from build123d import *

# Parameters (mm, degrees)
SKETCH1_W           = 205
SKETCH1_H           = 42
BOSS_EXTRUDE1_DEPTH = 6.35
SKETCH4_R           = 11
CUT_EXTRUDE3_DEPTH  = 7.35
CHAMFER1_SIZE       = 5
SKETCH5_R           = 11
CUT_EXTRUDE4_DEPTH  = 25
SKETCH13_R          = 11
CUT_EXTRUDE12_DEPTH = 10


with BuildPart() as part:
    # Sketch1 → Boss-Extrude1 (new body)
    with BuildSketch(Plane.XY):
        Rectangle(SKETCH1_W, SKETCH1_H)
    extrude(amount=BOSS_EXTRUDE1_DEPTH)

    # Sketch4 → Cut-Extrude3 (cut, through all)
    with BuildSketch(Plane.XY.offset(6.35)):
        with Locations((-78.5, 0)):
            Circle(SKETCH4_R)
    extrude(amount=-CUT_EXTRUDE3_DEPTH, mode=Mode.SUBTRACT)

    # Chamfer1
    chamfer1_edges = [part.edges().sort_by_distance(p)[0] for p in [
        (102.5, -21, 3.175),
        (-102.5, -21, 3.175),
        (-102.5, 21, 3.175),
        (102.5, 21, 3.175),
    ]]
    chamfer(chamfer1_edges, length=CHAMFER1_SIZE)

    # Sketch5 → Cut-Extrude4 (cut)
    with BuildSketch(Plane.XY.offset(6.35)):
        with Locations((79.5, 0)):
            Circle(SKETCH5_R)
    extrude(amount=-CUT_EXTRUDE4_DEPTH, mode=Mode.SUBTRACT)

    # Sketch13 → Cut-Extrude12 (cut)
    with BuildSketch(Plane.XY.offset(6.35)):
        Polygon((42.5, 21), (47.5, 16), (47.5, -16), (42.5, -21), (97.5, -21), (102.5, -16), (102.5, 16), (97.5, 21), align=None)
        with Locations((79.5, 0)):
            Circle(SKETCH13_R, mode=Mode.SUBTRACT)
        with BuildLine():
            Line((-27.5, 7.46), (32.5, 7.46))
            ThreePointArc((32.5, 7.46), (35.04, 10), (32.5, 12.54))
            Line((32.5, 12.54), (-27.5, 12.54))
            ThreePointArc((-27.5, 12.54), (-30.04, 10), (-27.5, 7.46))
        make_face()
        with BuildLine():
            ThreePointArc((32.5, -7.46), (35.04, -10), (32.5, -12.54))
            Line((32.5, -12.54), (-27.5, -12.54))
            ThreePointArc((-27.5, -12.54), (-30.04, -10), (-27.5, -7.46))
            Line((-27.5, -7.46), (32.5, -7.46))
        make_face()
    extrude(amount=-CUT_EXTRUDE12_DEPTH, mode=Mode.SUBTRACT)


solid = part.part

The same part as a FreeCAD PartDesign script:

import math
import FreeCAD as App
import Part
import Sketcher
Q = App.Units.Quantity


def edges_at(feature, points):
    """Names of the edges that pass closest to the given points."""
    edges = feature.Shape.Edges
    near = lambda p: min(range(len(edges)), key=lambda i: edges[i].distToShape(Part.Vertex(*p))[0])
    return sorted({f"Edge{near(p) + 1}" for p in points})

doc = App.newDocument("Part")
body = doc.addObject("PartDesign::Body", "Body")

# Sketch on XY plane
sketch1 = body.newObject("Sketcher::SketchObject", "Sketch")
sketch1.AttachmentSupport = (doc.getObject("XY_Plane"), [""])
sketch1.MapMode = "FlatFace"
sketch1.addGeometry([
    Part.LineSegment(App.Vector(-102, 21, 0), App.Vector(-102, -21, 0)),
    Part.LineSegment(App.Vector(-102, -21, 0), App.Vector(102, -21, 0)),
    Part.LineSegment(App.Vector(102, -21, 0), App.Vector(102, 21, 0)),
    Part.LineSegment(App.Vector(102, 21, 0), App.Vector(-102, 21, 0)),
], False)
sketch1.addConstraint([
    Sketcher.Constraint("Coincident", 0, 2, 1, 1),
    Sketcher.Constraint("Coincident", 1, 2, 2, 1),
    Sketcher.Constraint("Coincident", 2, 2, 3, 1),
    Sketcher.Constraint("Coincident", 3, 2, 0, 1),
    Sketcher.Constraint("Vertical", 0),
    Sketcher.Constraint("Horizontal", 1),
    Sketcher.Constraint("Vertical", 2),
    Sketcher.Constraint("Horizontal", 3),
    Sketcher.Constraint("Symmetric", 0, 2, 2, 2, -1, 1),
    Sketcher.Constraint("DistanceX", 1, 1, 1, 2, Q("205 mm")),
    Sketcher.Constraint("DistanceY", 0, 2, 0, 1, Q("42 mm")),
])
pad1 = body.newObject("PartDesign::Pad", "Pad")
pad1.Profile = sketch1
pad1.Length = 6.35

# Sketch on XY plane
sketch2 = body.newObject("Sketcher::SketchObject", "Sketch001")
sketch2.AttachmentSupport = (doc.getObject("XY_Plane"), [""])
sketch2.MapMode = "FlatFace"
sketch2.AttachmentOffset = App.Placement(App.Vector(0, 0, 6.35), App.Rotation())
sketch2.addGeometry(Part.Circle(App.Vector(-78, 0, 0), App.Vector(0, 0, 1), 11), False)
sketch2.addConstraint([
    Sketcher.Constraint("PointOnObject", 0, 3, -1),
    Sketcher.Constraint("Diameter", 0, Q("22 mm")),
    Sketcher.Constraint("DistanceX", 0, 3, -1, 1, Q("78.5 mm")),
])
pocket1 = body.newObject("PartDesign::Pocket", "Pocket")
pocket1.Profile = sketch2
pocket1.Type = "ThroughAll"
doc.recompute()

chamfer = body.newObject("PartDesign::Chamfer", "Chamfer")
chamfer.Base = (pocket1, edges_at(pocket1, [
    (102.5, -21, 3.175),
    (-102.5, -21, 3.175),
    (-102.5, 21, 3.175),
    (102.5, 21, 3.175),
]))
chamfer.Size = 5

# Sketch on XY plane
sketch3 = body.newObject("Sketcher::SketchObject", "Sketch002")
sketch3.AttachmentSupport = (doc.getObject("XY_Plane"), [""])
sketch3.MapMode = "FlatFace"
sketch3.AttachmentOffset = App.Placement(App.Vector(0, 0, 6.35), App.Rotation())
sketch3.addGeometry(Part.Circle(App.Vector(80, 0, 0), App.Vector(0, 0, 1), 11), False)
sketch3.addConstraint([
    Sketcher.Constraint("PointOnObject", 0, 3, -1),
    Sketcher.Constraint("Diameter", 0, Q("22 mm")),
    Sketcher.Constraint("DistanceX", -1, 1, 0, 3, Q("79.5 mm")),
])
pocket2 = body.newObject("PartDesign::Pocket", "Pocket001")
pocket2.Profile = sketch3
pocket2.Length = 25

# Sketch on XY plane
sketch4 = body.newObject("Sketcher::SketchObject", "Sketch003")
sketch4.AttachmentSupport = (doc.getObject("XY_Plane"), [""])
sketch4.MapMode = "FlatFace"
sketch4.AttachmentOffset = App.Placement(App.Vector(0, 0, 6.35), App.Rotation())
sketch4.addGeometry([
    Part.LineSegment(App.Vector(42.5, 21, 0), App.Vector(47.5, 16, 0)),  # 0
    Part.LineSegment(App.Vector(47.5, 16, 0), App.Vector(47.5, -16, 0)),  # 1
    Part.LineSegment(App.Vector(47.5, -16, 0), App.Vector(42.5, -21, 0)),  # 2
    Part.LineSegment(App.Vector(42.5, -21, 0), App.Vector(97.5, -21, 0)),  # 3
    Part.LineSegment(App.Vector(97.5, -21, 0), App.Vector(102.5, -16, 0)),  # 4
    Part.LineSegment(App.Vector(102.5, -16, 0), App.Vector(102.5, 16, 0)),  # 5
    Part.LineSegment(App.Vector(102.5, 16, 0), App.Vector(97.5, 21, 0)),  # 6
    Part.LineSegment(App.Vector(97.5, 21, 0), App.Vector(42.5, 21, 0)),  # 7
    Part.Circle(App.Vector(79.5, 0, 0), App.Vector(0, 0, 1), 11),  # 8
    Part.LineSegment(App.Vector(-27.5, 7.5, 0), App.Vector(32.5, 7.5, 0)),  # 9
    Part.ArcOfCircle(Part.Circle(App.Vector(32.5, 10, 0), App.Vector(0, 0, 1), 2.5), math.radians(-90), math.radians(90)),  # 10
    Part.LineSegment(App.Vector(32.5, 12.5, 0), App.Vector(-27.5, 12.5, 0)),  # 11
    Part.ArcOfCircle(Part.Circle(App.Vector(-27.5, 10, 0), App.Vector(0, 0, 1), 2.5), math.radians(90), math.radians(270)),  # 12
    Part.ArcOfCircle(Part.Circle(App.Vector(32.5, -10, 0), App.Vector(0, 0, 1), 2.5), math.radians(-90), math.radians(90)),  # 13
    Part.LineSegment(App.Vector(32.5, -7.5, 0), App.Vector(-27.5, -7.5, 0)),  # 14
    Part.ArcOfCircle(Part.Circle(App.Vector(-27.5, -10, 0), App.Vector(0, 0, 1), 2.5), math.radians(90), math.radians(270)),  # 15
    Part.LineSegment(App.Vector(-27.5, -12.5, 0), App.Vector(32.5, -12.5, 0)),  # 16
], False)
sketch4.addConstraint([
    Sketcher.Constraint("Coincident", 0, 2, 1, 1),
    Sketcher.Constraint("Coincident", 1, 2, 2, 1),
    Sketcher.Constraint("Coincident", 2, 2, 3, 1),
    Sketcher.Constraint("Coincident", 3, 2, 4, 1),
    Sketcher.Constraint("Coincident", 4, 2, 5, 1),
    Sketcher.Constraint("Coincident", 5, 2, 6, 1),
    Sketcher.Constraint("Coincident", 6, 2, 7, 1),
    Sketcher.Constraint("Coincident", 7, 2, 0, 1),
    Sketcher.Constraint("Tangent", 9, 2, 10, 1),
    Sketcher.Constraint("Tangent", 10, 2, 11, 1),
    Sketcher.Constraint("Tangent", 11, 2, 12, 1),
    Sketcher.Constraint("Tangent", 12, 2, 9, 1),
    Sketcher.Constraint("Tangent", 13, 2, 14, 1),
    Sketcher.Constraint("Tangent", 14, 2, 15, 1),
    Sketcher.Constraint("Tangent", 15, 2, 16, 1),
    Sketcher.Constraint("Tangent", 16, 2, 13, 1),
    Sketcher.Constraint("Vertical", 1),
    Sketcher.Constraint("Horizontal", 3),
    Sketcher.Constraint("Vertical", 5),
    Sketcher.Constraint("Horizontal", 7),
    Sketcher.Constraint("Horizontal", 9),
    Sketcher.Constraint("Horizontal", 11),
    Sketcher.Constraint("Horizontal", 14),
    Sketcher.Constraint("Horizontal", 16),
    Sketcher.Constraint("Equal", 12, 13),
    Sketcher.Constraint("Symmetric", 10, 3, 13, 3, -1),
    Sketcher.Constraint("Symmetric", 3, 2, 6, 2, -1),
    Sketcher.Constraint("PointOnObject", 8, 3, -1),
    Sketcher.Constraint("Perpendicular", 0, 2),
    Sketcher.Constraint("Parallel", 2, 4),
    Sketcher.Constraint("Perpendicular", 4, 6),
    Sketcher.Constraint("Horizontal", 1, 2, 4, 2),
    Sketcher.Constraint("Horizontal", 0, 2, 5, 2),
    Sketcher.Constraint("Vertical", 12, 3, 15, 3),
    Sketcher.Constraint("Equal", 0, 2),
    Sketcher.Constraint("Diameter", 8, Q("22 mm")),
    Sketcher.Constraint("DistanceX", 3, 1, 3, 2, Q("55 mm")),
    Sketcher.Constraint("DistanceX", 9, 1, 9, 2, Q("60 mm")),
    Sketcher.Constraint("DistanceY", 1, 2, 1, 1, Q("32 mm")),
    Sketcher.Constraint("Radius", 10, Q("2.54 mm")),
    Sketcher.Constraint("DistanceY", -1, 1, 10, 3, Q("10 mm")),
    Sketcher.Constraint("DistanceY", 2, 2, -1, 1, Q("21 mm")),
    Sketcher.Constraint("DistanceX", 10, 3, 8, 3, Q("47 mm")),
    Sketcher.Constraint("DistanceX", 10, 3, 0, 2, Q("15 mm")),
    Sketcher.Constraint("DistanceX", -1, 1, 8, 3, Q("79.5 mm")),
])
pocket3 = body.newObject("PartDesign::Pocket", "Pocket002")
pocket3.Profile = sketch4
pocket3.Length = 10

doc.recompute()
